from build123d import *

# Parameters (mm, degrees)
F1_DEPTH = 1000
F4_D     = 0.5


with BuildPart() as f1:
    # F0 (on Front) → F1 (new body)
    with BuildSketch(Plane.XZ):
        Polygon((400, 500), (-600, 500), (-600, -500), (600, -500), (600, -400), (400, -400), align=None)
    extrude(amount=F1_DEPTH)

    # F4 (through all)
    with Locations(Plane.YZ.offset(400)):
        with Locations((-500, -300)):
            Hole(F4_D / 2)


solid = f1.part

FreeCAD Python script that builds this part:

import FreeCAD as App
import Part
import Sketcher
from FreeCAD import Vector
Q = App.Units.Quantity


def add_polygon(sketch, points):
    """Adds a closed chain of lines whose ends are joined by coincident constraints."""
    first, n = sketch.GeometryCount, len(points)
    for a, b in zip(points, points[1:] + points[:1]):
        sketch.addGeometry(Part.LineSegment(App.Vector(*a, 0), App.Vector(*b, 0)), False)
    for i in range(n):
        sketch.addConstraint(Sketcher.Constraint("Coincident", first + i, 2, first + (i + 1) % n, 1))

doc = App.newDocument("Part")
body = doc.addObject("PartDesign::Body", "Body")

# Sketch on XZ plane
sketch1 = body.newObject("Sketcher::SketchObject", "Sketch")
sketch1.AttachmentSupport = (doc.getObject("XZ_Plane"), [""])
sketch1.MapMode = "FlatFace"
add_polygon(sketch1, [(400, 500), (-600, 500), (-600, -500), (600, -500), (600, -400), (400, -400)])  # lines 0-5
sketch1.addConstraint(Sketcher.Constraint("Horizontal", 0))
sketch1.addConstraint(Sketcher.Constraint("Vertical", 1))
sketch1.addConstraint(Sketcher.Constraint("Horizontal", 2))
sketch1.addConstraint(Sketcher.Constraint("Vertical", 3))
sketch1.addConstraint(Sketcher.Constraint("Horizontal", 4))
sketch1.addConstraint(Sketcher.Constraint("Vertical", 5))
sketch1.addConstraint(Sketcher.Constraint("Symmetric", 0, 2, 2, 2, -1, 1))
sketch1.addConstraint(Sketcher.Constraint("Equal", 0, 1))
sketch1.addConstraint(Sketcher.Constraint("DistanceX", 0, 2, 0, 1, Q("1000 mm")))
sketch1.addConstraint(Sketcher.Constraint("DistanceX", 2, 1, 2, 2, Q("1200 mm")))
sketch1.addConstraint(Sketcher.Constraint("DistanceY", 3, 1, 3, 2, Q("100 mm")))
pad1 = body.newObject("PartDesign::Pad", "Pad")
pad1.Profile = sketch1
pad1.Length = 1000

# Sketch on YZ plane
sketch2 = body.newObject("Sketcher::SketchObject", "Sketch001")
sketch2.AttachmentSupport = (doc.getObject("YZ_Plane"), [""])
sketch2.MapMode = "FlatFace"
sketch2.AttachmentOffset = App.Placement(Vector(0, 0, 400), App.Rotation())
sketch2.addGeometry(Part.Circle(Vector(-500, -300, 0), Vector(0, 0, 1), 0.25), False)
sketch2.addConstraint(Sketcher.Constraint("Diameter", 0, Q("0.5 mm")))
sketch2.addConstraint(Sketcher.Constraint("DistanceX", 0, 3, -1, 1, Q("500 mm")))
sketch2.addConstraint(Sketcher.Constraint("DistanceY", 0, 3, -1, 1, Q("300 mm")))
doc.recompute()
hole = body.newObject("PartDesign::Hole", "Hole")
hole.Profile = sketch2
hole.ThreadType = "None"
hole.Diameter = 0.5
hole.DepthType = "ThroughAll"

doc.recompute()
